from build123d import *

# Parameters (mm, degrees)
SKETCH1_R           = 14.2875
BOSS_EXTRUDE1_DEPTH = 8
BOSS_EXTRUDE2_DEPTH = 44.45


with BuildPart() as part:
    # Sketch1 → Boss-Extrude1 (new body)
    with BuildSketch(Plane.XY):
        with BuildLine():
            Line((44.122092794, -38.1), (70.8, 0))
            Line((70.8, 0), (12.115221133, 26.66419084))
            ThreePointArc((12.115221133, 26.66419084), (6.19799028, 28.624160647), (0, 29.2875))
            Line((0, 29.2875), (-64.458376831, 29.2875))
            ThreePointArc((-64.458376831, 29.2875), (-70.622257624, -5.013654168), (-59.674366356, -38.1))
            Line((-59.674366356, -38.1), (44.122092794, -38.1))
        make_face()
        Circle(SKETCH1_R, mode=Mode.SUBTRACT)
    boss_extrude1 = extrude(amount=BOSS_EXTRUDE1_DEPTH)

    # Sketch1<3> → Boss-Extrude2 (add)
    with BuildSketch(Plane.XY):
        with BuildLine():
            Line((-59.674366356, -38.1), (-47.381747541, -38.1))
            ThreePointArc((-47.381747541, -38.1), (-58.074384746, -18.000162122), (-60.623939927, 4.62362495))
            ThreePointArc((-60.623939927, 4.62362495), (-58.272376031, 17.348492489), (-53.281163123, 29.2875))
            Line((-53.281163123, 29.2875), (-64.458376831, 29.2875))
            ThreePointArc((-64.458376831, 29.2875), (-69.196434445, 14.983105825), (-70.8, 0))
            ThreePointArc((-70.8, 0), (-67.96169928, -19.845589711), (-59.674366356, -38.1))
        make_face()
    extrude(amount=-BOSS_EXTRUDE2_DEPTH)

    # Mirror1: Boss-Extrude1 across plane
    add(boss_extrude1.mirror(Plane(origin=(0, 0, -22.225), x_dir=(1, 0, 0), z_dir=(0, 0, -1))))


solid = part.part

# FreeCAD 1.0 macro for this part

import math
import FreeCAD as App
import Part
import Sketcher

V = App.Vector
Q = App.Units.Quantity

doc = App.newDocument("Part")
body = doc.addObject("PartDesign::Body", "Body")

# Sketch on XY plane
sketch1 = body.newObject("Sketcher::SketchObject", "Sketch")
sketch1.AttachmentSupport = (doc.getObject("XY_Plane"), [""])
sketch1.MapMode = "FlatFace"
sketch1.addGeometry(Part.LineSegment(V(44, -38, 0), V(71, 0, 0)), False)
sketch1.addGeometry(Part.LineSegment(V(71, 0, 0), V(12, 27, 0)), False)
sketch1.addGeometry(Part.ArcOfCircle(Part.Circle(V(0, 0, 0), V(0, 0, 1), 29), math.radians(66), math.radians(90)), False)
sketch1.addGeometry(Part.LineSegment(V(0, 29, 0), V(-64, 29, 0)), False)
sketch1.addGeometry(Part.ArcOfCircle(Part.Circle(V(0, 0, 0), V(0, 0, 1), 71), math.radians(156), math.radians(213)), False)
sketch1.addGeometry(Part.LineSegment(V(-60, -38, 0), V(44, -38, 0)), False)
sketch1.addGeometry(Part.Circle(V(0, 0, 0), V(0, 0, 1), 14), False)
sketch1.addConstraint(Sketcher.Constraint("Coincident", 0, 2, 1, 1))
sketch1.addConstraint(Sketcher.Constraint("Tangent", 1, 2, 2, 1))
sketch1.addConstraint(Sketcher.Constraint("Tangent", 2, 2, 3, 1))
sketch1.addConstraint(Sketcher.Constraint("Coincident", 3, 2, 4, 1))
sketch1.addConstraint(Sketcher.Constraint("Coincident", 4, 2, 5, 1))
sketch1.addConstraint(Sketcher.Constraint("Coincident", 5, 2, 0, 1))
sketch1.addConstraint(Sketcher.Constraint("Horizontal", 3))
sketch1.addConstraint(Sketcher.Constraint("Horizontal", 5))
sketch1.addConstraint(Sketcher.Constraint("Coincident", 2, 3, -1, 1))
sketch1.addConstraint(Sketcher.Constraint("Coincident", 4, 3, -1, 1))
sketch1.addConstraint(Sketcher.Constraint("Coincident", 6, 3, -1, 1))
sketch1.addConstraint(Sketcher.Constraint("PointOnObject", 0, 2, -1))
sketch1.addConstraint(Sketcher.Constraint("Radius", 4, Q("70.8 mm")))
sketch1.addConstraint(Sketcher.Constraint("Angle", 0, Q("55 deg")))
sketch1.addConstraint(Sketcher.Constraint("Diameter", 6, Q("28.575 mm")))
sketch1.addConstraint(Sketcher.Constraint("DistanceX", -1, 1, 0, 2, Q("70.8 mm")))
sketch1.addConstraint(Sketcher.Constraint("DistanceY", 4, 2, -1, 1, Q("38.1 mm")))
sketch1.addConstraint(Sketcher.Constraint("Radius", 2, Q("29.2875 mm")))
pad1 = body.newObject("PartDesign::Pad", "Pad")
pad1.Profile = sketch1
pad1.Length = 8

# Sketch on XY plane
sketch2 = body.newObject("Sketcher::SketchObject", "Sketch001")
sketch2.AttachmentSupport = (doc.getObject("XY_Plane"), [""])
sketch2.MapMode = "FlatFace"
sketch2.addGeometry(Part.LineSegment(V(-60, -38, 0), V(-47, -38, 0)), False)
sketch2.addGeometry(Part.ArcOfCircle(Part.Circle(V(0, 0, 0), V(0, 0, 1), 61), math.radians(176), math.radians(219)), False)
sketch2.addGeometry(Part.ArcOfCircle(Part.Circle(V(0, 0, 0), V(0, 0, 1), 61), math.radians(151), math.radians(176)), False)
sketch2.addGeometry(Part.LineSegment(V(-53, 29, 0), V(-64, 29, 0)), False)
sketch2.addGeometry(Part.ArcOfCircle(Part.Circle(V(0, 0, 0), V(0, 0, 1), 71), math.radians(156), math.radians(180)), False)
sketch2.addGeometry(Part.ArcOfCircle(Part.Circle(V(0, 0, 0), V(0, 0, 1), 71), math.radians(180), math.radians(213)), False)
sketch2.addConstraint(Sketcher.Constraint("Coincident", 0, 2, 1, 2))
sketch2.addConstraint(Sketcher.Constraint("Tangent", 1, 1, 2, 2))
sketch2.addConstraint(Sketcher.Constraint("Coincident", 2, 1, 3, 1))
sketch2.addConstraint(Sketcher.Constraint("Coincident", 3, 2, 4, 1))
sketch2.addConstraint(Sketcher.Constraint("Tangent", 4, 2, 5, 1))
sketch2.addConstraint(Sketcher.Constraint("Coincident", 5, 2, 0, 1))
sketch2.addConstraint(Sketcher.Constraint("Horizontal", 0))
sketch2.addConstraint(Sketcher.Constraint("Horizontal", 3))
sketch2.addConstraint(Sketcher.Constraint("Coincident", 1, 3, -1, 1))
sketch2.addConstraint(Sketcher.Constraint("Coincident", 4, 3, -1, 1))
sketch2.addConstraint(Sketcher.Constraint("Equal", 1, 2))
sketch2.addConstraint(Sketcher.Constraint("Equal", 4, 5))
sketch2.addConstraint(Sketcher.Constraint("PointOnObject", 4, 2, -1))
sketch2.addConstraint(Sketcher.Constraint("Radius", 1, Q("60.8 mm")))
sketch2.addConstraint(Sketcher.Constraint("Radius", 4, Q("70.8 mm")))
sketch2.addConstraint(Sketcher.Constraint("DistanceY", 0, 2, -1, 1, Q("38.1 mm")))
sketch2.addConstraint(Sketcher.Constraint("DistanceY", -1, 1, 2, 1, Q("29.2875 mm")))
sketch2.addConstraint(Sketcher.Constraint("DistanceX", 1, 1, -1, 1, Q("60.62394 mm")))
pad2 = body.newObject("PartDesign::Pad", "Pad001")
pad2.Profile = sketch2
pad2.Length = 44.45
pad2.Reversed = True
doc.recompute()

datumplane = body.newObject("PartDesign::Plane", "DatumPlane")
datumplane.AttachmentSupport = (doc.getObject("XY_Plane"), [""])
datumplane.MapMode = "FlatFace"
datumplane.AttachmentOffset = App.Placement(V(0, 0, -22.225), App.Rotation())
mirrored = body.newObject("PartDesign::Mirrored", "Mirrored")
mirrored.Originals = [pad1]
mirrored.MirrorPlane = (datumplane, [""])
body.Tip = mirrored

doc.recompute()
